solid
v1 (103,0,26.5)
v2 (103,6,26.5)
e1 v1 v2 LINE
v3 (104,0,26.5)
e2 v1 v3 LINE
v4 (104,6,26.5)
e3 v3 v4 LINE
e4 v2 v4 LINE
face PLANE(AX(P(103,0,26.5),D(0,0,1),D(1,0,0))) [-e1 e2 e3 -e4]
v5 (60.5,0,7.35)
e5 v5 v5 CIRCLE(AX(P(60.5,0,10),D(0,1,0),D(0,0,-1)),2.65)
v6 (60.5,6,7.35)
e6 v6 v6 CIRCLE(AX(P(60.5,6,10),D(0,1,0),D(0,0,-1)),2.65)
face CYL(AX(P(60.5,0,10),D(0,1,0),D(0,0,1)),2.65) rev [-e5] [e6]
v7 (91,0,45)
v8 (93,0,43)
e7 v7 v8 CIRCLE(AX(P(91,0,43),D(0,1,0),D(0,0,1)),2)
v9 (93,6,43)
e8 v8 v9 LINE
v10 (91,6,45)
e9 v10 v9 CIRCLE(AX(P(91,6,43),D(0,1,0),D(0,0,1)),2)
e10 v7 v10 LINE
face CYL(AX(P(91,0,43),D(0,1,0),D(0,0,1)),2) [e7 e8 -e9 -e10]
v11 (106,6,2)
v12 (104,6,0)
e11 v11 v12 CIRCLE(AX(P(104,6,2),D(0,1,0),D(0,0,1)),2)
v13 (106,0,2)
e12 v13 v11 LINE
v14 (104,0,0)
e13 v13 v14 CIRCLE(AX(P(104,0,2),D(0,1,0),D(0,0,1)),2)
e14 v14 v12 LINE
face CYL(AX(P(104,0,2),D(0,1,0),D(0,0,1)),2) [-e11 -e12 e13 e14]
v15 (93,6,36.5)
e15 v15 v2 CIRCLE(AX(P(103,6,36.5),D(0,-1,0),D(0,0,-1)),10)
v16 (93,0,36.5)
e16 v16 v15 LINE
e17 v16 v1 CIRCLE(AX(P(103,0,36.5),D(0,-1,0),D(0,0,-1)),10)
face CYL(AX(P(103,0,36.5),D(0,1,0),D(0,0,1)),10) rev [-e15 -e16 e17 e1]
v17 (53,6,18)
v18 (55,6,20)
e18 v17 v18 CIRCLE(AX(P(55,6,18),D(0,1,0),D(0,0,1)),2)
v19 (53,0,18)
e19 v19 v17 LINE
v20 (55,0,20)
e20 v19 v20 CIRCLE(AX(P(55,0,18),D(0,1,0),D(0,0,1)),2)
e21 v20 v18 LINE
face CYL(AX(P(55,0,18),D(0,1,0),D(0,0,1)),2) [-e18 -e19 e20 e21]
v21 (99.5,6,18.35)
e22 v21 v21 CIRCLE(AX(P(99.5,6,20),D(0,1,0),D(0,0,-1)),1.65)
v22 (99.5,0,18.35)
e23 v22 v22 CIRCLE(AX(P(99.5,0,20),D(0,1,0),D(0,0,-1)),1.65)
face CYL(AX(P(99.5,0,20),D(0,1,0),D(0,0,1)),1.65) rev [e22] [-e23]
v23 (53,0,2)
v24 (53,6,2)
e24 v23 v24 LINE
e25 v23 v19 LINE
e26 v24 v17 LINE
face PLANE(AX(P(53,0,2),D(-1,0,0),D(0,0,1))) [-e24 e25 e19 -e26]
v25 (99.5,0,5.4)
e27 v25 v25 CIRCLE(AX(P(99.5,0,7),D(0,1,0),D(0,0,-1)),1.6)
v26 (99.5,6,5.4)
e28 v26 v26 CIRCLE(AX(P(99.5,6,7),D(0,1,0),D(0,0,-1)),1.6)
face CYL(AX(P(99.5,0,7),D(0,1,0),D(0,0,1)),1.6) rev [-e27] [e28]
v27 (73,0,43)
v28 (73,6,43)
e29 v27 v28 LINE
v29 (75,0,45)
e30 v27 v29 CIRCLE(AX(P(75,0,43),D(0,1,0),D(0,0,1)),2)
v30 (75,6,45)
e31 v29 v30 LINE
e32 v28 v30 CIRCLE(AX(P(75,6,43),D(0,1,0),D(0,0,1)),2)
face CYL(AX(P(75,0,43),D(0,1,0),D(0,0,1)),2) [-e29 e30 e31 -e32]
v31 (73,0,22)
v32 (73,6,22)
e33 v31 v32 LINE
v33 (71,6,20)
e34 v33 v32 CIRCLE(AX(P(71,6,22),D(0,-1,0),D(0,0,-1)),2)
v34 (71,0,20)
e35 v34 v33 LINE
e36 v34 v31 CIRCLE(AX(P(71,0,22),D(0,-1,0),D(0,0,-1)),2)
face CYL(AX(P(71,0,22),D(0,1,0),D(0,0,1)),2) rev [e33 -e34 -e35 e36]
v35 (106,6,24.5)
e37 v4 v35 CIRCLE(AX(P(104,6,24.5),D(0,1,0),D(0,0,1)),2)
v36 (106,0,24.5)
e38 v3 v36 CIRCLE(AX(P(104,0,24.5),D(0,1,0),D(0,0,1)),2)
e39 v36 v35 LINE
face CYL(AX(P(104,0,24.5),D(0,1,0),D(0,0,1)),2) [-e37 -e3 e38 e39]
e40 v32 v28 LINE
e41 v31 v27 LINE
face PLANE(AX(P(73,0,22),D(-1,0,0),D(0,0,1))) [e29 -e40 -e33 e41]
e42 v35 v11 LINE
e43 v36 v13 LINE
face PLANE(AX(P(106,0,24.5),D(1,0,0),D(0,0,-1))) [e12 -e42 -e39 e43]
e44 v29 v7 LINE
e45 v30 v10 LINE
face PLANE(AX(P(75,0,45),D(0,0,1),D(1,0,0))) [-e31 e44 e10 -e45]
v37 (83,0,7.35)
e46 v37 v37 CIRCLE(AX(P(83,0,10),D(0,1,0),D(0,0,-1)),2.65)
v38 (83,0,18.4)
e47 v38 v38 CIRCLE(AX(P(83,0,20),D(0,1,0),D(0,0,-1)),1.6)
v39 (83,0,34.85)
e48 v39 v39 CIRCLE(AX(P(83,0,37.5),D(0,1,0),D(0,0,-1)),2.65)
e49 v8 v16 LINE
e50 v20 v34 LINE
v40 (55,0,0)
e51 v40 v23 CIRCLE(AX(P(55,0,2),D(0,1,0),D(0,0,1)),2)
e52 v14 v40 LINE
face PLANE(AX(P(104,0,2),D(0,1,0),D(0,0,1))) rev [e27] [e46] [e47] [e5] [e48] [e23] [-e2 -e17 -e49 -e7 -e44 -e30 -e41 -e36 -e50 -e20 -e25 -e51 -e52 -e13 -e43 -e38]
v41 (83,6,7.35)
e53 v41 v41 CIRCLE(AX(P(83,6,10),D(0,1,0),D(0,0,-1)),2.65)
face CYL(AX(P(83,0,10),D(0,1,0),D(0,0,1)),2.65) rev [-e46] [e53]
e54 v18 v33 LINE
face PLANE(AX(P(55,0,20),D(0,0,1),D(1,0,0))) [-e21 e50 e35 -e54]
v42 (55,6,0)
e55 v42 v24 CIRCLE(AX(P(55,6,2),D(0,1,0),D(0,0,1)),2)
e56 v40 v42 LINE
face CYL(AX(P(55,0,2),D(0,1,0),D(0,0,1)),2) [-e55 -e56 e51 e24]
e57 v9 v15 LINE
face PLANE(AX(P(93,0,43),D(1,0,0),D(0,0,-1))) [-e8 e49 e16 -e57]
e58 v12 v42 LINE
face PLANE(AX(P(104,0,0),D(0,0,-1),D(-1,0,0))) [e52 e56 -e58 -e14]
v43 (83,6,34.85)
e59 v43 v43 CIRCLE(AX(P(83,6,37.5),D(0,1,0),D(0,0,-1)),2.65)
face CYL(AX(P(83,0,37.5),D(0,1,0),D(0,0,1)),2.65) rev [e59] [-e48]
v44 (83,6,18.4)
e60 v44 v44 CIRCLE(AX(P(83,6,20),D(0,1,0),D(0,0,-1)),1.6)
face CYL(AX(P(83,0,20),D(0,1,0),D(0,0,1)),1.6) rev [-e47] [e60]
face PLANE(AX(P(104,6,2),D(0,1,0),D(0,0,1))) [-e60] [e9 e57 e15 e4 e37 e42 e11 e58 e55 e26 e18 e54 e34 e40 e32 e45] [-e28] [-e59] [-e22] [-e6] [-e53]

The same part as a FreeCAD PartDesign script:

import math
import FreeCAD as App
import Part
import Sketcher
from FreeCAD import Vector

doc = App.newDocument("Part")
params = doc.addObject("Spreadsheet::Sheet", "Params")
for row, (alias, value) in enumerate([
    ("sketch1_radius", "2 mm"),
    ("sketch1_radius2", "10 mm"),
    ("sketch1_diameter", "5.3 mm"),
    ("sketch1_diameter2", "3.2 mm"),
    ("sketch1_diameter3", "3.3 mm"),
    ("pad1_length", "6 mm"),
], start=1):
    params.set(f"A{row}", alias)
    params.set(f"B{row}", "=" + value)
    params.setAlias(f"B{row}", alias)

body = doc.addObject("PartDesign::Body", "Body")

sketch1 = body.newObject("Sketcher::SketchObject", "Sketch")
sketch1.AttachmentSupport = (doc.getObject("XZ_Plane"), [""])
sketch1.MapMode = "FlatFace"
sketch1.AttachmentOffset = App.Placement(Vector(0, 0, -6), App.Rotation())
sketch1.addGeometry(Part.LineSegment(Vector(104, 0, 0), Vector(55, 0, 0)), False)
sketch1.addGeometry(Part.ArcOfCircle(Part.Circle(Vector(55, 2, 0), Vector(0, 0, 1), 2), math.radians(-180), math.radians(-90)), False)
sketch1.addGeometry(Part.LineSegment(Vector(53, 2, 0), Vector(53, 18, 0)), False)
sketch1.addGeometry(Part.ArcOfCircle(Part.Circle(Vector(55, 18, 0), Vector(0, 0, 1), 2), math.radians(90), math.radians(180)), False)
sketch1.addGeometry(Part.LineSegment(Vector(55, 20, 0), Vector(71, 20, 0)), False)
sketch1.addGeometry(Part.ArcOfCircle(Part.Circle(Vector(71, 22, 0), Vector(0, 0, 1), 2), math.radians(-90), math.radians(0)), False)
sketch1.addGeometry(Part.LineSegment(Vector(73, 22, 0), Vector(73, 43, 0)), False)
sketch1.addGeometry(Part.ArcOfCircle(Part.Circle(Vector(75, 43, 0), Vector(0, 0, 1), 2), math.radians(90), math.radians(180)), False)
sketch1.addGeometry(Part.LineSegment(Vector(75, 45, 0), Vector(91, 45, 0)), False)
sketch1.addGeometry(Part.ArcOfCircle(Part.Circle(Vector(91, 43, 0), Vector(0, 0, 1), 2), math.radians(0), math.radians(90)), False)
sketch1.addGeometry(Part.LineSegment(Vector(93, 43, 0), Vector(93, 36.5, 0)), False)
sketch1.addGeometry(Part.ArcOfCircle(Part.Circle(Vector(103, 36.5, 0), Vector(0, 0, 1), 10), math.radians(180), math.radians(270)), False)
sketch1.addGeometry(Part.LineSegment(Vector(103, 26.5, 0), Vector(104, 26.5, 0)), False)
sketch1.addGeometry(Part.ArcOfCircle(Part.Circle(Vector(104, 24.5, 0), Vector(0, 0, 1), 2), math.radians(0), math.radians(90)), False)
sketch1.addGeometry(Part.LineSegment(Vector(106, 24.5, 0), Vector(106, 2, 0)), False)
sketch1.addGeometry(Part.ArcOfCircle(Part.Circle(Vector(104, 2, 0), Vector(0, 0, 1), 2), math.radians(-90), math.radians(0)), False)
sketch1.addGeometry(Part.Circle(Vector(83, 37.5, 0), Vector(0, 0, 1), 2.6), False)
sketch1.addGeometry(Part.Circle(Vector(60.5, 10, 0), Vector(0, 0, 1), 2.6), False)
sketch1.addGeometry(Part.Circle(Vector(83, 20, 0), Vector(0, 0, 1), 1.6), False)
sketch1.addGeometry(Part.Circle(Vector(99.5, 20, 0), Vector(0, 0, 1), 1.6), False)
sketch1.addGeometry(Part.Circle(Vector(83, 10, 0), Vector(0, 0, 1), 2.6), False)
sketch1.addGeometry(Part.Circle(Vector(99.5, 7, 0), Vector(0, 0, 1), 1.6), False)
sketch1.addConstraint(Sketcher.Constraint("Tangent", 0, 2, 1, 2))
sketch1.addConstraint(Sketcher.Constraint("Tangent", 1, 1, 2, 1))
sketch1.addConstraint(Sketcher.Constraint("Tangent", 2, 2, 3, 2))
sketch1.addConstraint(Sketcher.Constraint("Tangent", 3, 1, 4, 1))
sketch1.addConstraint(Sketcher.Constraint("Tangent", 4, 2, 5, 1))
sketch1.addConstraint(Sketcher.Constraint("Tangent", 5, 2, 6, 1))
sketch1.addConstraint(Sketcher.Constraint("Tangent", 6, 2, 7, 2))
sketch1.addConstraint(Sketcher.Constraint("Tangent", 7, 1, 8, 1))
sketch1.addConstraint(Sketcher.Constraint("Tangent", 8, 2, 9, 2))
sketch1.addConstraint(Sketcher.Constraint("Tangent", 9, 1, 10, 1))
sketch1.addConstraint(Sketcher.Constraint("Tangent", 10, 2, 11, 1))
sketch1.addConstraint(Sketcher.Constraint("Tangent", 11, 2, 12, 1))
sketch1.addConstraint(Sketcher.Constraint("Tangent", 12, 2, 13, 2))
sketch1.addConstraint(Sketcher.Constraint("Tangent", 13, 1, 14, 1))
sketch1.addConstraint(Sketcher.Constraint("Tangent", 14, 2, 15, 2))
sketch1.addConstraint(Sketcher.Constraint("Tangent", 15, 1, 0, 1))
sketch1.addConstraint(Sketcher.Constraint("Horizontal", 0))
sketch1.addConstraint(Sketcher.Constraint("Vertical", 2))
sketch1.addConstraint(Sketcher.Constraint("Horizontal", 4))
sketch1.addConstraint(Sketcher.Constraint("Vertical", 6))
sketch1.addConstraint(Sketcher.Constraint("Horizontal", 8))
sketch1.addConstraint(Sketcher.Constraint("Vertical", 10))
sketch1.addConstraint(Sketcher.Constraint("Horizontal", 12))
sketch1.addConstraint(Sketcher.Constraint("Vertical", 14))
sketch1.addConstraint(Sketcher.Constraint("Equal", 1, 3))
sketch1.addConstraint(Sketcher.Constraint("Equal", 3, 5))
sketch1.addConstraint(Sketcher.Constraint("Equal", 5, 7))
sketch1.addConstraint(Sketcher.Constraint("Equal", 7, 9))
sketch1.addConstraint(Sketcher.Constraint("Equal", 9, 13))
sketch1.addConstraint(Sketcher.Constraint("Equal", 13, 15))
sketch1.addConstraint(Sketcher.Constraint("Equal", 16, 17))
sketch1.addConstraint(Sketcher.Constraint("Equal", 17, 20))
sketch1.addConstraint(Sketcher.Constraint("Equal", 18, 21))
sketch1.addConstraint(Sketcher.Constraint("PointOnObject", 0, 2, -1))
sketch1.addConstraint(Sketcher.Constraint("Horizontal", 18, 3, 19, 3))
sketch1.addConstraint(Sketcher.Constraint("Horizontal", 17, 3, 20, 3))
sketch1.addConstraint(Sketcher.Constraint("Horizontal", 19, 3, 3, 1))
sketch1.addConstraint(Sketcher.Constraint("Vertical", 16, 3, 18, 3))
sketch1.addConstraint(Sketcher.Constraint("Vertical", 18, 3, 20, 3))
sketch1.addConstraint(Sketcher.Constraint("Vertical", 19, 3, 21, 3))
sketch1.addConstraint(Sketcher.Constraint("Equal", 4, 8))
sketch1.addConstraint(Sketcher.Constraint("Equal", 8, 2))
sketch1.addConstraint(Sketcher.Constraint("Radius", 1, 2.0))
sketch1.addConstraint(Sketcher.Constraint("Radius", 11, 10.0))
sketch1.addConstraint(Sketcher.Constraint("Diameter", 16, 5.3))
sketch1.addConstraint(Sketcher.Constraint("Diameter", 18, 3.2))
sketch1.addConstraint(Sketcher.Constraint("Diameter", 19, 3.3))
sketch1.addConstraint(Sketcher.Constraint("DistanceX", 0, 2, 0, 1, 49.0))
sketch1.addConstraint(Sketcher.Constraint("DistanceX", 4, 1, 4, 2, 16.0))
sketch1.addConstraint(Sketcher.Constraint("DistanceY", 6, 1, 6, 2, 21.0))
sketch1.addConstraint(Sketcher.Constraint("DistanceY", 10, 2, 10, 1, 6.5))
sketch1.addConstraint(Sketcher.Constraint("DistanceX", -1, 1, 1, 3, 55.0))
sketch1.addConstraint(Sketcher.Constraint("DistanceX", -1, 1, 16, 3, 83.0))
sketch1.addConstraint(Sketcher.Constraint("DistanceY", -1, 1, 17, 3, 10.0))
sketch1.addConstraint(Sketcher.Constraint("DistanceY", -1, 1, 21, 3, 7.0))
sketch1.addConstraint(Sketcher.Constraint("DistanceY", 11, 3, 16, 3, 1.0))
sketch1.addConstraint(Sketcher.Constraint("DistanceX", -1, 1, 17, 3, 60.5))
sketch1.addConstraint(Sketcher.Constraint("DistanceX", -1, 1, 19, 3, 99.5))
sketch1.setExpression("Constraints[42]", "Params.sketch1_radius")
sketch1.setExpression("Constraints[43]", "Params.sketch1_radius2")
sketch1.setExpression("Constraints[44]", "Params.sketch1_diameter")
sketch1.setExpression("Constraints[45]", "Params.sketch1_diameter2")
sketch1.setExpression("Constraints[46]", "Params.sketch1_diameter3")
pad1 = body.newObject("PartDesign::Pad", "Pad")
pad1.Profile = sketch1
pad1.setExpression("Length", "Params.pad1_length")

doc.recompute()
